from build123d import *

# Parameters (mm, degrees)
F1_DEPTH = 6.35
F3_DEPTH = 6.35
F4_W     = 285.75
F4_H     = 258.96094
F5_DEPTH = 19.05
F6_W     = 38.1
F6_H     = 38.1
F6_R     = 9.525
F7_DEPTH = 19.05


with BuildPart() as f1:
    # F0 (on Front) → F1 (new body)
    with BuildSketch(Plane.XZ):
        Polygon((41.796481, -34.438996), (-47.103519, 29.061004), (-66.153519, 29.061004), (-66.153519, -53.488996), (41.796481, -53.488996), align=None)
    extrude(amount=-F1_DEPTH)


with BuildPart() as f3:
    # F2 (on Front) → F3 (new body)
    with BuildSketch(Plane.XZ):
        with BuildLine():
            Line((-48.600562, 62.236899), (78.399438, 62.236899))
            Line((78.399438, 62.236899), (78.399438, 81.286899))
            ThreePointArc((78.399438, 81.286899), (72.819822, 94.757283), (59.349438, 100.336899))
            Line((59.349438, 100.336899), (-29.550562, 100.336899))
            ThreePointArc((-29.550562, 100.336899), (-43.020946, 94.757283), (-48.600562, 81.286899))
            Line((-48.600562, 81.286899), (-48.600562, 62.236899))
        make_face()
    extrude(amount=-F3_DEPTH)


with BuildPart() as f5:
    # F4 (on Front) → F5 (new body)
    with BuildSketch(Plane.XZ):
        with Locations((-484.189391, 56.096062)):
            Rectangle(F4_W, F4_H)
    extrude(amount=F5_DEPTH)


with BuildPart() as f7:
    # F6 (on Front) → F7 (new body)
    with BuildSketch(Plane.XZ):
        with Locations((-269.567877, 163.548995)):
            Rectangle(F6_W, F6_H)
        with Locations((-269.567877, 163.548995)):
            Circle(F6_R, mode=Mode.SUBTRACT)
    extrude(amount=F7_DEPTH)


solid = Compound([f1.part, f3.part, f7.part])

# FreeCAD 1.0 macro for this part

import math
import FreeCAD as App
import Part
import Sketcher
Q = App.Units.Quantity

doc = App.newDocument("Part")
body = doc.addObject("PartDesign::Body", "Body")

sketch1 = body.newObject("Sketcher::SketchObject", "Sketch")
sketch1.AttachmentSupport = (doc.getObject("XZ_Plane"), [""])
sketch1.MapMode = "FlatFace"
sketch1.addGeometry([
    Part.LineSegment(App.Vector(41.796481, -34.438996, 0), App.Vector(-47.103519, 29.061004, 0)),
    Part.LineSegment(App.Vector(-47.103519, 29.061004, 0), App.Vector(-66.153519, 29.061004, 0)),
    Part.LineSegment(App.Vector(-66.153519, 29.061004, 0), App.Vector(-66.153519, -53.488996, 0)),
    Part.LineSegment(App.Vector(-66.153519, -53.488996, 0), App.Vector(41.796481, -53.488996, 0)),
    Part.LineSegment(App.Vector(41.796481, -53.488996, 0), App.Vector(41.796481, -34.438996, 0)),
], False)
sketch1.addConstraint([
    Sketcher.Constraint("Coincident", 0, 2, 1, 1),
    Sketcher.Constraint("Coincident", 1, 2, 2, 1),
    Sketcher.Constraint("Coincident", 2, 2, 3, 1),
    Sketcher.Constraint("Coincident", 3, 2, 4, 1),
    Sketcher.Constraint("Coincident", 4, 2, 0, 1),
    Sketcher.Constraint("Horizontal", 1),
    Sketcher.Constraint("Vertical", 2),
    Sketcher.Constraint("Horizontal", 3),
    Sketcher.Constraint("Vertical", 4),
    Sketcher.Constraint("Equal", 1, 4),
    Sketcher.Constraint("DistanceX", 1, 2, 1, 1, Q("0.75 in")),
    Sketcher.Constraint("DistanceX", 3, 1, 3, 2, Q("4.25 in")),
    Sketcher.Constraint("DistanceY", 2, 2, 2, 1, Q("3.25 in")),
    Sketcher.Constraint("DistanceX", 0, 2, -1, 1, Q("47.103519 mm")),
    Sketcher.Constraint("DistanceY", -1, 1, 0, 2, Q("29.061004 mm")),
])
pad1 = body.newObject("PartDesign::Pad", "Pad")
pad1.Profile = sketch1
pad1.Length = Q("0.25 in")
pad1.Reversed = True
body2 = doc.addObject("PartDesign::Body", "Body001")

sketch2 = body2.newObject("Sketcher::SketchObject", "Sketch001")
sketch2.AttachmentSupport = (doc.getObject("XZ_Plane001"), [""])
sketch2.MapMode = "FlatFace"
sketch2.addGeometry([
    Part.LineSegment(App.Vector(-48.600562, 62.236899, 0), App.Vector(78.399438, 62.236899, 0)),
    Part.LineSegment(App.Vector(78.399438, 62.236899, 0), App.Vector(78.399438, 81.286899, 0)),
    Part.ArcOfCircle(Part.Circle(App.Vector(59.349437, 81.286898, 0), App.Vector(0, 0, 1), 19.050001), math.radians(0.000002), math.radians(89.999998)),
    Part.LineSegment(App.Vector(59.349438, 100.336899, 0), App.Vector(-29.550562, 100.336899, 0)),
    Part.ArcOfCircle(Part.Circle(App.Vector(-29.550561, 81.286898, 0), App.Vector(0, 0, 1), 19.050001), math.radians(90.000002), math.radians(179.999998)),
    Part.LineSegment(App.Vector(-48.600562, 81.286899, 0), App.Vector(-48.600562, 62.236899, 0)),
], False)
sketch2.addConstraint([
    Sketcher.Constraint("Coincident", 0, 2, 1, 1),
    Sketcher.Constraint("Tangent", 1, 2, 2, 1),
    Sketcher.Constraint("Tangent", 2, 2, 3, 1),
    Sketcher.Constraint("Tangent", 3, 2, 4, 1),
    Sketcher.Constraint("Tangent", 4, 2, 5, 1),
    Sketcher.Constraint("Coincident", 5, 2, 0, 1),
    Sketcher.Constraint("Horizontal", 0),
    Sketcher.Constraint("Vertical", 1),
    Sketcher.Constraint("Horizontal", 3),
    Sketcher.Constraint("Vertical", 5),
    Sketcher.Constraint("Equal", 2, 4),
    Sketcher.Constraint("DistanceX", 0, 1, 0, 2, Q("5 in")),
    Sketcher.Constraint("Radius", 2, Q("0.75 in")),
    Sketcher.Constraint("DistanceY", 1, 1, 1, 2, Q("0.75 in")),
    Sketcher.Constraint("DistanceY", -1, 1, 2, 3, Q("81.286898 mm")),
    Sketcher.Constraint("DistanceX", 4, 3, -1, 1, Q("29.550561 mm")),
])
pad2 = body2.newObject("PartDesign::Pad", "Pad001")
pad2.Profile = sketch2
pad2.Length = Q("0.25 in")
pad2.Reversed = True
body3 = doc.addObject("PartDesign::Body", "Body002")

sketch3 = body3.newObject("Sketcher::SketchObject", "Sketch002")
sketch3.AttachmentSupport = (doc.getObject("XZ_Plane002"), [""])
sketch3.MapMode = "FlatFace"
sketch3.addGeometry([
    Part.LineSegment(App.Vector(-627.064391, 185.576532, 0), App.Vector(-627.064391, -73.384408, 0)),
    Part.LineSegment(App.Vector(-627.064391, -73.384408, 0), App.Vector(-341.314391, -73.384408, 0)),
    Part.LineSegment(App.Vector(-341.314391, -73.384408, 0), App.Vector(-341.314391, 185.576532, 0)),
    Part.LineSegment(App.Vector(-341.314391, 185.576532, 0), App.Vector(-627.064391, 185.576532, 0)),
], False)
sketch3.addConstraint([
    Sketcher.Constraint("Coincident", 0, 2, 1, 1),
    Sketcher.Constraint("Coincident", 1, 2, 2, 1),
    Sketcher.Constraint("Coincident", 2, 2, 3, 1),
    Sketcher.Constraint("Coincident", 3, 2, 0, 1),
    Sketcher.Constraint("Vertical", 0),
    Sketcher.Constraint("Horizontal", 1),
    Sketcher.Constraint("Vertical", 2),
    Sketcher.Constraint("Horizontal", 3),
    Sketcher.Constraint("DistanceX", 1, 1, 1, 2, Q("11.25 in")),
    Sketcher.Constraint("DistanceY", 0, 2, 0, 1, Q("258.96094 mm")),
    Sketcher.Constraint("DistanceX", 0, 2, -1, 1, Q("627.064391 mm")),
    Sketcher.Constraint("DistanceY", -1, 1, 2, 2, Q("185.576532 mm")),
])
pad3 = body3.newObject("PartDesign::Pad", "Pad002")
pad3.Profile = sketch3
pad3.Length = Q("0.75 in")
body4 = doc.addObject("PartDesign::Body", "Body003")

sketch4 = body4.newObject("Sketcher::SketchObject", "Sketch003")
sketch4.AttachmentSupport = (doc.getObject("XZ_Plane003"), [""])
sketch4.MapMode = "FlatFace"
sketch4.addGeometry([
    Part.LineSegment(App.Vector(-288.617877, 182.598995, 0), App.Vector(-288.617877, 144.498995, 0)),
    Part.LineSegment(App.Vector(-288.617877, 144.498995, 0), App.Vector(-250.517877, 144.498995, 0)),
    Part.LineSegment(App.Vector(-250.517877, 144.498995, 0), App.Vector(-250.517877, 182.598995, 0)),
    Part.LineSegment(App.Vector(-250.517877, 182.598995, 0), App.Vector(-288.617877, 182.598995, 0)),
    Part.Circle(App.Vector(-269.567877, 163.548995, 0), App.Vector(0, 0, 1), 9.525),
], False)
sketch4.addConstraint([
    Sketcher.Constraint("Coincident", 0, 2, 1, 1),
    Sketcher.Constraint("Coincident", 1, 2, 2, 1),
    Sketcher.Constraint("Coincident", 2, 2, 3, 1),
    Sketcher.Constraint("Coincident", 3, 2, 0, 1),
    Sketcher.Constraint("Vertical", 0),
    Sketcher.Constraint("Horizontal", 1),
    Sketcher.Constraint("Vertical", 2),
    Sketcher.Constraint("Horizontal", 3),
    Sketcher.Constraint("Equal", 3, 0),
    Sketcher.Constraint("Diameter", 4, Q("0.75 in")),
    Sketcher.Constraint("DistanceX", 1, 1, 1, 2, Q("1.5 in")),
    Sketcher.Constraint("DistanceX", 0, 2, 4, 3, Q("0.75 in")),
    Sketcher.Constraint("DistanceY", 0, 2, 4, 3, Q("0.75 in")),
    Sketcher.Constraint("DistanceX", 4, 3, -1, 1, Q("269.567877 mm")),
    Sketcher.Constraint("DistanceY", -1, 1, 4, 3, Q("163.548995 mm")),
])
pad4 = body4.newObject("PartDesign::Pad", "Pad003")
pad4.Profile = sketch4
pad4.Length = Q("0.75 in")
body3.Visibility = False

doc.recompute()
